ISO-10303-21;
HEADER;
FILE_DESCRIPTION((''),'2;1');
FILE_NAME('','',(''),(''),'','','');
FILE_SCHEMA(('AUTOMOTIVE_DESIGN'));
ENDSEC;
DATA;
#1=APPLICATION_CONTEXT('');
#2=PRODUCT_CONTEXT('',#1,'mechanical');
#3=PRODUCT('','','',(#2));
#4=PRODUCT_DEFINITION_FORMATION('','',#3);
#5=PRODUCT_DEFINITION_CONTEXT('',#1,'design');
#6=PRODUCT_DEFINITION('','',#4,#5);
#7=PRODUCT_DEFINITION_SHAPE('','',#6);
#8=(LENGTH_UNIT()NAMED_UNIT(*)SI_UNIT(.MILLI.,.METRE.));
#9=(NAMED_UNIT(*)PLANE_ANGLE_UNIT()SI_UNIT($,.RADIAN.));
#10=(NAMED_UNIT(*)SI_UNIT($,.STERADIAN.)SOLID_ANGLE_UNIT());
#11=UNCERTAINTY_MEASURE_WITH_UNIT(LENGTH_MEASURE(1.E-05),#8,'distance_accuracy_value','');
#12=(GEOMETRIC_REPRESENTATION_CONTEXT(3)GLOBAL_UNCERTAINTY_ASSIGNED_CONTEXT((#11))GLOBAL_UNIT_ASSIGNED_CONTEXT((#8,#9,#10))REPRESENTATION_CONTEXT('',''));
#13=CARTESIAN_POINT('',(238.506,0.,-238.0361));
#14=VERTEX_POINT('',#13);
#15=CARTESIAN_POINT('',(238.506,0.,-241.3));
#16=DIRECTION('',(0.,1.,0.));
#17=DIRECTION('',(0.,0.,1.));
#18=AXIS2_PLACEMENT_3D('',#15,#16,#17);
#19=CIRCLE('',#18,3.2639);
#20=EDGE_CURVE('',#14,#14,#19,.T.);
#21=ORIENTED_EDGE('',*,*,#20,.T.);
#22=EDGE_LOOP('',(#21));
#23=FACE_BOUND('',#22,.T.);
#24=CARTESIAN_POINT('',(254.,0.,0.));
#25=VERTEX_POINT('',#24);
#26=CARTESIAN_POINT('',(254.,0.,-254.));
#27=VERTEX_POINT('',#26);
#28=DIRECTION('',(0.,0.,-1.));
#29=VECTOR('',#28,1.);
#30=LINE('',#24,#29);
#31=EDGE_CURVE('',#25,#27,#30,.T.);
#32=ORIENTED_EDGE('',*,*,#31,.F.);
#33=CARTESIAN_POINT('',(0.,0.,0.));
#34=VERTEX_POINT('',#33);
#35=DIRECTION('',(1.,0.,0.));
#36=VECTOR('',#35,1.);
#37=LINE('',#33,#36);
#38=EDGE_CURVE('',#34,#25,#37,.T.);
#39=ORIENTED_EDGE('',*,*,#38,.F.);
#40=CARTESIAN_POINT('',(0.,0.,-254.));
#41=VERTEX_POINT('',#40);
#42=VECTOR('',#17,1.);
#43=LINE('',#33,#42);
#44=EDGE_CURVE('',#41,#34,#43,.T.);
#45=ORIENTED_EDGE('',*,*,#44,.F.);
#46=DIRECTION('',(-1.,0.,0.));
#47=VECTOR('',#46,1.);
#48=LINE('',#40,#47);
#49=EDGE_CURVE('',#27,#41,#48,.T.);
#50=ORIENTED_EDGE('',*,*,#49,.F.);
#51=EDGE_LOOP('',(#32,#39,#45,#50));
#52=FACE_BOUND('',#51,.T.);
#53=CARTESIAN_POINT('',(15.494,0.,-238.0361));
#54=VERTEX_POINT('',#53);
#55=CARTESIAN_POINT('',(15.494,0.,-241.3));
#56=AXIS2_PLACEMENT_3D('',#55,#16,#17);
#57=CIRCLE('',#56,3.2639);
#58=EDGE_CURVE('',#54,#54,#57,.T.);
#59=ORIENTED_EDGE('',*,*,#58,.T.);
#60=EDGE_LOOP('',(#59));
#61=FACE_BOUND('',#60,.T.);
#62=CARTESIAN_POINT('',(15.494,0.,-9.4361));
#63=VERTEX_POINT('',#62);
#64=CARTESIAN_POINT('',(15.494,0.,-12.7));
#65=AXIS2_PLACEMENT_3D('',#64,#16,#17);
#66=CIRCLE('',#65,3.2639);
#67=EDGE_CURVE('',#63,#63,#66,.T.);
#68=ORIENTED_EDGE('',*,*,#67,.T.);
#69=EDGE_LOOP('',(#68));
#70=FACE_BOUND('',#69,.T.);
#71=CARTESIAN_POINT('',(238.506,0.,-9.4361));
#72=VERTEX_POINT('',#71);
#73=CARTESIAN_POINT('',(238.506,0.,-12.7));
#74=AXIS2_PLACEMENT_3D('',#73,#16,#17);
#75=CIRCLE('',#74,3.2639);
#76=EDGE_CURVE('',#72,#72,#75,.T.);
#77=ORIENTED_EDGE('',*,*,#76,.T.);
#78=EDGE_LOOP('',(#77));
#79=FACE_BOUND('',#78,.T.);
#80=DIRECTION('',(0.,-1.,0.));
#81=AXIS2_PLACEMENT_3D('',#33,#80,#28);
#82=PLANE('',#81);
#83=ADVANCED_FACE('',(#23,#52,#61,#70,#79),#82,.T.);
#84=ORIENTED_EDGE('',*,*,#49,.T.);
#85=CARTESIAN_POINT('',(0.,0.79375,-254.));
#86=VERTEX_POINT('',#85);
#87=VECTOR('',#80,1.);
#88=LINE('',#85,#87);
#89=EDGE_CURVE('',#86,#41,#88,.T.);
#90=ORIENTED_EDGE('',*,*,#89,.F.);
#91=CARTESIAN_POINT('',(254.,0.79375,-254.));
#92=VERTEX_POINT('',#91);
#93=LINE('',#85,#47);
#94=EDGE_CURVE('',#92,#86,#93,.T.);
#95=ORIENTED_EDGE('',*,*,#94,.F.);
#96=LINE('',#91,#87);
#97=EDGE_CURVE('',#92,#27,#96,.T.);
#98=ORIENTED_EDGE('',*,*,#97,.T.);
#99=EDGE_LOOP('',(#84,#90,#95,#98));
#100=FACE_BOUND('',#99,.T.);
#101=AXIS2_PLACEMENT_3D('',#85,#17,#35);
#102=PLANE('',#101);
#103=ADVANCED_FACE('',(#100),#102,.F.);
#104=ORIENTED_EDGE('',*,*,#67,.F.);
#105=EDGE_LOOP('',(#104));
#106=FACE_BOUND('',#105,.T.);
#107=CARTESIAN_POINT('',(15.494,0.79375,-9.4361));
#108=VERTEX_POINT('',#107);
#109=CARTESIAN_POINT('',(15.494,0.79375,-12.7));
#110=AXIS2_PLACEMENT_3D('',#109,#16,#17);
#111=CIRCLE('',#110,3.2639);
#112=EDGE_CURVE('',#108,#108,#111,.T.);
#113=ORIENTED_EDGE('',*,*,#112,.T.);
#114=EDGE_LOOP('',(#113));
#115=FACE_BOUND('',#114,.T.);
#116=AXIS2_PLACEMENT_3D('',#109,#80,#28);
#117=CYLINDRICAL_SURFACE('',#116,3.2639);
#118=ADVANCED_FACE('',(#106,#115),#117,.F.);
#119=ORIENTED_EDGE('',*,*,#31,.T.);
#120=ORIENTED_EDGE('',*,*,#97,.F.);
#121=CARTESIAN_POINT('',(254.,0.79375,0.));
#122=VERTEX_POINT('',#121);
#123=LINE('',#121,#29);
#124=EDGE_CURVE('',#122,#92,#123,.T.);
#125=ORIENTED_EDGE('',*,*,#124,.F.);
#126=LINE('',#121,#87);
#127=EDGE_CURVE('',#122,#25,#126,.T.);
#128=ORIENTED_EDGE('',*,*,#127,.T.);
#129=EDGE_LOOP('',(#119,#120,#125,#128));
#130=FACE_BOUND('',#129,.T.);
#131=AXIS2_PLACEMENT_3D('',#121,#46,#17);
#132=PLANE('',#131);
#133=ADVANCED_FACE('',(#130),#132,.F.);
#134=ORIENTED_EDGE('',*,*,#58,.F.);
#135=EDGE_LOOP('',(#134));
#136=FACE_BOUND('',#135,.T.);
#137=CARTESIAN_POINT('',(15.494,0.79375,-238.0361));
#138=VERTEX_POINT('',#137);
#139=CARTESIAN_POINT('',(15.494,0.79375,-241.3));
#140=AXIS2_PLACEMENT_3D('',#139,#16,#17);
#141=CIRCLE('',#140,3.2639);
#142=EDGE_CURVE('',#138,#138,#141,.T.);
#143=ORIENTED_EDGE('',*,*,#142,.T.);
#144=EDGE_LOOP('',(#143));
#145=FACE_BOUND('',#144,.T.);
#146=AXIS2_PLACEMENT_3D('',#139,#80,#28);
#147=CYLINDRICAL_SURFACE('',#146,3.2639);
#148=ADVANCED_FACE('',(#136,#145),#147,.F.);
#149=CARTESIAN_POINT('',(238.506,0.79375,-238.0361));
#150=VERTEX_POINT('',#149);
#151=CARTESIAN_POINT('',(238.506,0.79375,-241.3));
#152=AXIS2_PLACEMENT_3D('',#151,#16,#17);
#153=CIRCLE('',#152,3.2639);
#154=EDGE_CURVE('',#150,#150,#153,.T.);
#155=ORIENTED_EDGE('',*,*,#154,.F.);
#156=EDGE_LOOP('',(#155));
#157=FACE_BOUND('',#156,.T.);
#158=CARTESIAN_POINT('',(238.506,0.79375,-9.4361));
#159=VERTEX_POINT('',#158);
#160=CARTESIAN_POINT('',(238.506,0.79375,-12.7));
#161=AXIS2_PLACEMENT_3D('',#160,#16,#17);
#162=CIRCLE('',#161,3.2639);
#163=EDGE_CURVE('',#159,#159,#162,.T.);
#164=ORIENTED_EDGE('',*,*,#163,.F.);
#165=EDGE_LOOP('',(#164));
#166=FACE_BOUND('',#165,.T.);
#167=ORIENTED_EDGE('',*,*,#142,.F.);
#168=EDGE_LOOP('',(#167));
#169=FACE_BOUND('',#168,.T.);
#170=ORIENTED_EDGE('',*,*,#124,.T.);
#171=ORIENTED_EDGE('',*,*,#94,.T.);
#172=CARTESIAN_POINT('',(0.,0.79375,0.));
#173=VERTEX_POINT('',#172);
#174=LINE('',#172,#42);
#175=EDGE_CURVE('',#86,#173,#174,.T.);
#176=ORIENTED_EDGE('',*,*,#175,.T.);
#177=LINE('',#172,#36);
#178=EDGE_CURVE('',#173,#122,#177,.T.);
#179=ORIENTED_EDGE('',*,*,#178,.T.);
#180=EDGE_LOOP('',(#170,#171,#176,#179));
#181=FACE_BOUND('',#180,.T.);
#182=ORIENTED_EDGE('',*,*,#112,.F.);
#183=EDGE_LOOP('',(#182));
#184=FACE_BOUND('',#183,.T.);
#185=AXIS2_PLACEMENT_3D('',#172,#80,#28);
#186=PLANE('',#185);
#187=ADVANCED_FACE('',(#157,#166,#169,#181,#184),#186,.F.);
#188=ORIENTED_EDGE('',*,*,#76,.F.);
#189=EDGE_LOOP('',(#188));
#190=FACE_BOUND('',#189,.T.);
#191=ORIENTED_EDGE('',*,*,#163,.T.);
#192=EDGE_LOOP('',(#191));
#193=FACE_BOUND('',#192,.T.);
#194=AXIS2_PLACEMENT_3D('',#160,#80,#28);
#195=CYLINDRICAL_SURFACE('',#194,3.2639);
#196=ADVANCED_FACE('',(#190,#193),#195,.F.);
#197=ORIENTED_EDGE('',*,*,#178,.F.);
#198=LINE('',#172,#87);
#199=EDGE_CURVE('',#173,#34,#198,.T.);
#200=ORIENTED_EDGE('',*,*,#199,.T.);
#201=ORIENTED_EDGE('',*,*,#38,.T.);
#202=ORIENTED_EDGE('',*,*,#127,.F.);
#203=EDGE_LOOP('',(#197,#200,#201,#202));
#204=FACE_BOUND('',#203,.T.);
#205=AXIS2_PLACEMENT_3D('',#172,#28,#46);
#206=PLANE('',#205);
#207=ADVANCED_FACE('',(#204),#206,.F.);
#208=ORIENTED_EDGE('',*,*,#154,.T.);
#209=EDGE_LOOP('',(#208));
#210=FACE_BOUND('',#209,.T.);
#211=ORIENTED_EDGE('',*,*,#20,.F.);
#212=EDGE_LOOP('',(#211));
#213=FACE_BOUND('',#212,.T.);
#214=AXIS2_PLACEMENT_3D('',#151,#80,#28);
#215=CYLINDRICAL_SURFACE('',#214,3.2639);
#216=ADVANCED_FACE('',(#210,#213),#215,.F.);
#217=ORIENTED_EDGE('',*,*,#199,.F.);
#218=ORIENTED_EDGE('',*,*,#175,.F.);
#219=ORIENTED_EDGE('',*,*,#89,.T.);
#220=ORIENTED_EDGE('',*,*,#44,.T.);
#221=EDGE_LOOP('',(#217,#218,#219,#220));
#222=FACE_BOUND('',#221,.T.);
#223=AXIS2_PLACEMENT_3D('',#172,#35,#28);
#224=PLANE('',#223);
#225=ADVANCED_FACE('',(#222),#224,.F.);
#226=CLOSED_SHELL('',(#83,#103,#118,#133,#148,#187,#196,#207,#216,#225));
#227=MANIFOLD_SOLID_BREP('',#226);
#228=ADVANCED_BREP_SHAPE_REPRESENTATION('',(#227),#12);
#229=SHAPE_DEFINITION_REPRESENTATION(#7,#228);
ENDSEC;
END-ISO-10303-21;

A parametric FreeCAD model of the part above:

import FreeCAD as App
import Part
import Sketcher

V = App.Vector
Q = App.Units.Quantity

doc = App.newDocument("Part")
params = doc.addObject("Spreadsheet::Sheet", "Params")
for row, (alias, value) in enumerate([
    ("sketch1_width", "10 in"),
    ("sketch1_diameter", "0.257 in"),
    ("pad1_length", "0.03125 in"),
], start=1):
    params.set(f"A{row}", alias)
    params.set(f"B{row}", "=" + value)
    params.setAlias(f"B{row}", alias)

body = doc.addObject("PartDesign::Body", "Body")

# Sketch on XZ plane
sketch1 = doc.addObject("Sketcher::SketchObject", "Sketch")
body.addObject(sketch1)
sketch1.AttachmentSupport = (doc.XZ_Plane, [""])
sketch1.MapMode = "FlatFace"
sketch1.addGeometry([
    Part.LineSegment(V(0, -254, 0), V(0, 0, 0)),  # 0
    Part.LineSegment(V(0, 0, 0), V(254, 0, 0)),  # 1
    Part.LineSegment(V(254, 0, 0), V(254, -254, 0)),  # 2
    Part.LineSegment(V(254, -254, 0), V(0, -254, 0)),  # 3
    Part.Circle(V(15.494, -12.7, 0), V(0, 0, 1), 3.2639),  # 4
    Part.Circle(V(238.506, -12.7, 0), V(0, 0, 1), 3.2639),  # 5
    Part.Circle(V(15.494, -241.3, 0), V(0, 0, 1), 3.2639),  # 6
    Part.Circle(V(238.506, -241.3, 0), V(0, 0, 1), 3.2639),  # 7
], False)
sketch1.addConstraint([
    Sketcher.Constraint("Coincident", 0, 2, 1, 1),
    Sketcher.Constraint("Coincident", 1, 2, 2, 1),
    Sketcher.Constraint("Coincident", 2, 2, 3, 1),
    Sketcher.Constraint("Coincident", 3, 2, 0, 1),
    Sketcher.Constraint("Vertical", 0),
    Sketcher.Constraint("Horizontal", 1),
    Sketcher.Constraint("Vertical", 2),
    Sketcher.Constraint("Horizontal", 3),
    Sketcher.Constraint("Coincident", 0, 2, -1, 1),
    Sketcher.Constraint("Equal", 4, 5),
    Sketcher.Constraint("Equal", 5, 6),
    Sketcher.Constraint("Equal", 6, 7),
    Sketcher.Constraint("Horizontal", 4, 3, 5, 3),
    Sketcher.Constraint("Horizontal", 6, 3, 7, 3),
    Sketcher.Constraint("Vertical", 4, 3, 6, 3),
    Sketcher.Constraint("Vertical", 5, 3, 7, 3),
    Sketcher.Constraint("Equal", 3, 0),
    Sketcher.Constraint("DistanceX", 1, 1, 1, 2, Q("10 in")),
    Sketcher.Constraint("Diameter", 4, Q("0.257 in")),
    Sketcher.Constraint("DistanceY", 6, 3, 4, 3, Q("9 in")),
    Sketcher.Constraint("DistanceY", 4, 3, -1, 1, Q("0.5 in")),
    Sketcher.Constraint("DistanceX", -1, 1, 4, 3, Q("0.61 in")),
    Sketcher.Constraint("DistanceX", -1, 1, 5, 3, Q("9.39 in")),
])
sketch1.setExpression("Constraints[17]", "Params.sketch1_width")
sketch1.setExpression("Constraints[18]", "Params.sketch1_diameter")
pad1 = doc.addObject("PartDesign::Pad", "Pad")
body.addObject(pad1)
pad1.Profile = sketch1
pad1.setExpression("Length", "Params.pad1_length")
pad1.Reversed = True

doc.recompute()
